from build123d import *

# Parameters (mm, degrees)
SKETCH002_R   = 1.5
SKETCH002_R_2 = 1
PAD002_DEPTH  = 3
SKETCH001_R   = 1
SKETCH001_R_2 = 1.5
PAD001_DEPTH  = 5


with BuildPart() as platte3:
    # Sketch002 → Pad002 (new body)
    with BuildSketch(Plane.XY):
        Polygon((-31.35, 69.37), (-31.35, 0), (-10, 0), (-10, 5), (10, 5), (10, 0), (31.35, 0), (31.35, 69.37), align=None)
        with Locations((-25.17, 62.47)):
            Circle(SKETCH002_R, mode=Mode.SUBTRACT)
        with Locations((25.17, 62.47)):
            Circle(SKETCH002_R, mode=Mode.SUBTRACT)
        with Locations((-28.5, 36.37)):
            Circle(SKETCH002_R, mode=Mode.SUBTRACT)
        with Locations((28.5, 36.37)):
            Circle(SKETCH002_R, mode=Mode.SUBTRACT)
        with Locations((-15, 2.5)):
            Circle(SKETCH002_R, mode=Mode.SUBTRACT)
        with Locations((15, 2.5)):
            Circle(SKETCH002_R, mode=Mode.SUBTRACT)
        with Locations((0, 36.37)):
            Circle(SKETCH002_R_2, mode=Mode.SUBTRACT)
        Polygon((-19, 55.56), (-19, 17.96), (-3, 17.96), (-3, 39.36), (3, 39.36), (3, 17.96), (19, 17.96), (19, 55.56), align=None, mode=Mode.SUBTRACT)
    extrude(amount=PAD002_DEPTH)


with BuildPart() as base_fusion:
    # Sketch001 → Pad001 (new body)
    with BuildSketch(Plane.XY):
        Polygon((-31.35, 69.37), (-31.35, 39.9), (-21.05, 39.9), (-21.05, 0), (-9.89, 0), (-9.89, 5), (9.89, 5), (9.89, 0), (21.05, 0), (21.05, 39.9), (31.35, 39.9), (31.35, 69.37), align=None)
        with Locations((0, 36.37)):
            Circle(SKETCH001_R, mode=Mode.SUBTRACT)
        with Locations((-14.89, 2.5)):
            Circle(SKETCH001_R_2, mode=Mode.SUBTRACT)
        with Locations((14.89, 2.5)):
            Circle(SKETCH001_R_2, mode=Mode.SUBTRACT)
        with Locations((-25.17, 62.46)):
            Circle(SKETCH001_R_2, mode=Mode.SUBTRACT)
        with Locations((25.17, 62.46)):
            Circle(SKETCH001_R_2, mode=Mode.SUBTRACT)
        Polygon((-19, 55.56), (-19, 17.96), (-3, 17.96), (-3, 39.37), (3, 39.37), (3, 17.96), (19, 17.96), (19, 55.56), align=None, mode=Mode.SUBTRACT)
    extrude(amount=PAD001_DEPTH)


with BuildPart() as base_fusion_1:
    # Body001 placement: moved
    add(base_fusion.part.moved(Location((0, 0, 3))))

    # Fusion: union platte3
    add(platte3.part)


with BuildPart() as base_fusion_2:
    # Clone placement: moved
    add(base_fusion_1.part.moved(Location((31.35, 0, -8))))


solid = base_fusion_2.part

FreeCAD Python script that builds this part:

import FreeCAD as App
import Part
import Sketcher

doc = App.newDocument("Part")
body = doc.addObject("PartDesign::Body", "Body")

sketch1 = body.newObject("Sketcher::SketchObject", "Sketch")
sketch1.AttachmentSupport = (doc.getObject("XY_Plane"), [""])
sketch1.MapMode = "FlatFace"
sketch1.addGeometry(Part.LineSegment(App.Vector(-31.4, 69.4, 0), App.Vector(-31.4, 0, 0)), False)
sketch1.addGeometry(Part.LineSegment(App.Vector(-31.4, 0, 0), App.Vector(-10, 0, 0)), False)
sketch1.addGeometry(Part.LineSegment(App.Vector(-10, 0, 0), App.Vector(-10, 5, 0)), False)
sketch1.addGeometry(Part.LineSegment(App.Vector(-10, 5, 0), App.Vector(10, 5, 0)), False)
sketch1.addGeometry(Part.LineSegment(App.Vector(10, 5, 0), App.Vector(10, 0, 0)), False)
sketch1.addGeometry(Part.LineSegment(App.Vector(10, 0, 0), App.Vector(31.4, 0, 0)), False)
sketch1.addGeometry(Part.LineSegment(App.Vector(31.4, 0, 0), App.Vector(31.4, 69.4, 0)), False)
sketch1.addGeometry(Part.LineSegment(App.Vector(31.4, 69.4, 0), App.Vector(-31.4, 69.4, 0)), False)
sketch1.addGeometry(Part.Circle(App.Vector(-15, 2.5, 0), App.Vector(0, 0, 1), 1.5), False)
sketch1.addGeometry(Part.Circle(App.Vector(15, 2.5, 0), App.Vector(0, 0, 1), 1.5), False)
sketch1.addGeometry(Part.Circle(App.Vector(-28.5, 36.4, 0), App.Vector(0, 0, 1), 1.5), False)
sketch1.addGeometry(Part.Circle(App.Vector(-25.2, 62.5, 0), App.Vector(0, 0, 1), 1.5), False)
sketch1.addGeometry(Part.Circle(App.Vector(0, 36.4, 0), App.Vector(0, 0, 1), 1), False)
sketch1.addGeometry(Part.LineSegment(App.Vector(-19, 18, 0), App.Vector(-19, 55.6, 0)), False)
sketch1.addGeometry(Part.LineSegment(App.Vector(-19, 55.6, 0), App.Vector(19, 55.6, 0)), False)
sketch1.addGeometry(Part.LineSegment(App.Vector(19, 55.6, 0), App.Vector(19, 18, 0)), False)
sketch1.addGeometry(Part.LineSegment(App.Vector(19, 18, 0), App.Vector(3, 18, 0)), False)
sketch1.addGeometry(Part.LineSegment(App.Vector(3, 18, 0), App.Vector(3, 39.4, 0)), False)
sketch1.addGeometry(Part.LineSegment(App.Vector(3, 39.4, 0), App.Vector(-3, 39.4, 0)), False)
sketch1.addGeometry(Part.LineSegment(App.Vector(-3, 39.4, 0), App.Vector(-3, 18, 0)), False)
sketch1.addGeometry(Part.LineSegment(App.Vector(-3, 18, 0), App.Vector(-19, 18, 0)), False)
sketch1.addGeometry(Part.Circle(App.Vector(28.5, 36.4, 0), App.Vector(0, 0, 1), 1.5), False)
sketch1.addGeometry(Part.Circle(App.Vector(25.2, 62.5, 0), App.Vector(0, 0, 1), 1.5), False)
sketch1.addConstraint(Sketcher.Constraint("Coincident", 0, 2, 1, 1))
sketch1.addConstraint(Sketcher.Constraint("Coincident", 1, 2, 2, 1))
sketch1.addConstraint(Sketcher.Constraint("Coincident", 2, 2, 3, 1))
sketch1.addConstraint(Sketcher.Constraint("Coincident", 3, 2, 4, 1))
sketch1.addConstraint(Sketcher.Constraint("Coincident", 4, 2, 5, 1))
sketch1.addConstraint(Sketcher.Constraint("Coincident", 5, 2, 6, 1))
sketch1.addConstraint(Sketcher.Constraint("Coincident", 6, 2, 7, 1))
sketch1.addConstraint(Sketcher.Constraint("Coincident", 7, 2, 0, 1))
sketch1.addConstraint(Sketcher.Constraint("Coincident", 13, 2, 14, 1))
sketch1.addConstraint(Sketcher.Constraint("Coincident", 14, 2, 15, 1))
sketch1.addConstraint(Sketcher.Constraint("Coincident", 15, 2, 16, 1))
sketch1.addConstraint(Sketcher.Constraint("Coincident", 16, 2, 17, 1))
sketch1.addConstraint(Sketcher.Constraint("Coincident", 17, 2, 18, 1))
sketch1.addConstraint(Sketcher.Constraint("Coincident", 18, 2, 19, 1))
sketch1.addConstraint(Sketcher.Constraint("Coincident", 19, 2, 20, 1))
sketch1.addConstraint(Sketcher.Constraint("Coincident", 20, 2, 13, 1))
sketch1.addConstraint(Sketcher.Constraint("Vertical", 0))
sketch1.addConstraint(Sketcher.Constraint("Horizontal", 1))
sketch1.addConstraint(Sketcher.Constraint("Vertical", 2))
sketch1.addConstraint(Sketcher.Constraint("Horizontal", 3))
sketch1.addConstraint(Sketcher.Constraint("Vertical", 4))
sketch1.addConstraint(Sketcher.Constraint("Horizontal", 5))
sketch1.addConstraint(Sketcher.Constraint("Vertical", 6))
sketch1.addConstraint(Sketcher.Constraint("Horizontal", 7))
sketch1.addConstraint(Sketcher.Constraint("Vertical", 13))
sketch1.addConstraint(Sketcher.Constraint("Horizontal", 14))
sketch1.addConstraint(Sketcher.Constraint("Vertical", 15))
sketch1.addConstraint(Sketcher.Constraint("Horizontal", 16))
sketch1.addConstraint(Sketcher.Constraint("Vertical", 17))
sketch1.addConstraint(Sketcher.Constraint("Horizontal", 18))
sketch1.addConstraint(Sketcher.Constraint("Vertical", 19))
sketch1.addConstraint(Sketcher.Constraint("Horizontal", 20))
sketch1.addConstraint(Sketcher.Constraint("Equal", 8, 9))
sketch1.addConstraint(Sketcher.Constraint("Equal", 9, 10))
sketch1.addConstraint(Sketcher.Constraint("Equal", 10, 11))
sketch1.addConstraint(Sketcher.Constraint("Equal", 11, 21))
sketch1.addConstraint(Sketcher.Constraint("Equal", 21, 22))
sketch1.addConstraint(Sketcher.Constraint("Symmetric", 1, 2, 4, 2, -1, 1))
sketch1.addConstraint(Sketcher.Constraint("Symmetric", 8, 3, 9, 3, -2))
sketch1.addConstraint(Sketcher.Constraint("Symmetric", 10, 3, 21, 3, -2))
sketch1.addConstraint(Sketcher.Constraint("Symmetric", 11, 3, 22, 3, -2))
sketch1.addConstraint(Sketcher.Constraint("Symmetric", 0, 2, 5, 2, -2))
sketch1.addConstraint(Sketcher.Constraint("Symmetric", 16, 2, 19, 2, -2))
sketch1.addConstraint(Sketcher.Constraint("PointOnObject", 12, 3, -2))
sketch1.addConstraint(Sketcher.Constraint("Horizontal", 10, 3, 12, 3))
sketch1.addConstraint(Sketcher.Constraint("Equal", 16, 20))
sketch1.addConstraint(Sketcher.Constraint("Diameter", 8, 3.0))
sketch1.addConstraint(Sketcher.Constraint("Diameter", 12, 2.0))
sketch1.addConstraint(Sketcher.Constraint("DistanceX", 3, 1, 3, 2, 20.0))
sketch1.addConstraint(Sketcher.Constraint("DistanceX", 14, 1, 14, 2, 38.0))
sketch1.addConstraint(Sketcher.Constraint("DistanceX", 16, 2, 16, 1, 16.0))
sketch1.addConstraint(Sketcher.Constraint("DistanceY", 2, 1, 2, 2, 5.0))
sketch1.addConstraint(Sketcher.Constraint("DistanceX", 7, 2, 7, 1, 62.7))
sketch1.addConstraint(Sketcher.Constraint("DistanceY", 13, 1, 13, 2, 37.6))
sketch1.addConstraint(Sketcher.Constraint("DistanceY", 17, 1, 17, 2, 21.4))
sketch1.addConstraint(Sketcher.Constraint("DistanceX", 8, 3, -1, 1, 15.0))
sketch1.addConstraint(Sketcher.Constraint("DistanceX", 10, 3, 21, 3, 57.0))
sketch1.addConstraint(Sketcher.Constraint("DistanceY", 21, 3, 6, 2, 33.0))
sketch1.addConstraint(Sketcher.Constraint("DistanceY", 0, 2, 0, 1, 69.37))
sketch1.addConstraint(Sketcher.Constraint("DistanceY", -1, 1, 8, 3, 2.5))
sketch1.addConstraint(Sketcher.Constraint("DistanceY", 10, 3, 11, 3, 26.1))
sketch1.addConstraint(Sketcher.Constraint("DistanceX", 11, 3, -1, 1, 25.17))
sketch1.addConstraint(Sketcher.Constraint("DistanceY", -1, 1, 13, 2, 55.56))
pad1 = body.newObject("PartDesign::Pad", "Pad")
pad1.Profile = sketch1
pad1.Length = 3
body2 = doc.addObject("PartDesign::Body", "Body001")

sketch2 = body2.newObject("Sketcher::SketchObject", "Sketch001")
sketch2.AttachmentSupport = (doc.getObject("XY_Plane001"), [""])
sketch2.MapMode = "FlatFace"
sketch2.addGeometry(Part.LineSegment(App.Vector(-31.4, 69.4, 0), App.Vector(-31.4, 39.9, 0)), False)
sketch2.addGeometry(Part.LineSegment(App.Vector(-31.4, 39.9, 0), App.Vector(-21.1, 39.9, 0)), False)
sketch2.addGeometry(Part.LineSegment(App.Vector(-21.1, 39.9, 0), App.Vector(-21.1, 0, 0)), False)
sketch2.addGeometry(Part.LineSegment(App.Vector(-21.1, 0, 0), App.Vector(-9.9, 0, 0)), False)
sketch2.addGeometry(Part.LineSegment(App.Vector(-9.9, 0, 0), App.Vector(-9.9, 5, 0)), False)
sketch2.addGeometry(Part.LineSegment(App.Vector(-9.9, 5, 0), App.Vector(9.9, 5, 0)), False)
sketch2.addGeometry(Part.LineSegment(App.Vector(9.9, 5, 0), App.Vector(9.9, 0, 0)), False)
sketch2.addGeometry(Part.LineSegment(App.Vector(9.9, 0, 0), App.Vector(21.1, 0, 0)), False)
sketch2.addGeometry(Part.LineSegment(App.Vector(21.1, 0, 0), App.Vector(21.1, 39.9, 0)), False)
sketch2.addGeometry(Part.LineSegment(App.Vector(21.1, 39.9, 0), App.Vector(31.4, 39.9, 0)), False)
sketch2.addGeometry(Part.LineSegment(App.Vector(31.4, 39.9, 0), App.Vector(31.4, 69.4, 0)), False)
sketch2.addGeometry(Part.LineSegment(App.Vector(31.4, 69.4, 0), App.Vector(-31.4, 69.4, 0)), False)
sketch2.addGeometry(Part.Circle(App.Vector(-14.9, 2.5, 0), App.Vector(0, 0, 1), 1.5), False)
sketch2.addGeometry(Part.Circle(App.Vector(14.9, 2.5, 0), App.Vector(0, 0, 1), 1.5), False)
sketch2.addGeometry(Part.Circle(App.Vector(0, 36.4, 0), App.Vector(0, 0, 1), 1), False)
sketch2.addGeometry(Part.LineSegment(App.Vector(-19, 18, 0), App.Vector(-19, 55.6, 0)), False)
sketch2.addGeometry(Part.LineSegment(App.Vector(-19, 55.6, 0), App.Vector(19, 55.6, 0)), False)
sketch2.addGeometry(Part.LineSegment(App.Vector(19, 55.6, 0), App.Vector(19, 18, 0)), False)
sketch2.addGeometry(Part.LineSegment(App.Vector(19, 18, 0), App.Vector(3, 18, 0)), False)
sketch2.addGeometry(Part.LineSegment(App.Vector(3, 18, 0), App.Vector(3, 39.4, 0)), False)
sketch2.addGeometry(Part.LineSegment(App.Vector(3, 39.4, 0), App.Vector(-3, 39.4, 0)), False)
sketch2.addGeometry(Part.LineSegment(App.Vector(-3, 39.4, 0), App.Vector(-3, 18, 0)), False)
sketch2.addGeometry(Part.LineSegment(App.Vector(-3, 18, 0), App.Vector(-19, 18, 0)), False)
sketch2.addGeometry(Part.Circle(App.Vector(-25.2, 62.5, 0), App.Vector(0, 0, 1), 1.5), False)
sketch2.addGeometry(Part.Circle(App.Vector(25.2, 62.5, 0), App.Vector(0, 0, 1), 1.5), False)
sketch2.addConstraint(Sketcher.Constraint("Coincident", 0, 2, 1, 1))
sketch2.addConstraint(Sketcher.Constraint("Coincident", 1, 2, 2, 1))
sketch2.addConstraint(Sketcher.Constraint("Coincident", 2, 2, 3, 1))
sketch2.addConstraint(Sketcher.Constraint("Coincident", 3, 2, 4, 1))
sketch2.addConstraint(Sketcher.Constraint("Coincident", 4, 2, 5, 1))
sketch2.addConstraint(Sketcher.Constraint("Coincident", 5, 2, 6, 1))
sketch2.addConstraint(Sketcher.Constraint("Coincident", 6, 2, 7, 1))
sketch2.addConstraint(Sketcher.Constraint("Coincident", 7, 2, 8, 1))
sketch2.addConstraint(Sketcher.Constraint("Coincident", 8, 2, 9, 1))
sketch2.addConstraint(Sketcher.Constraint("Coincident", 9, 2, 10, 1))
sketch2.addConstraint(Sketcher.Constraint("Coincident", 10, 2, 11, 1))
sketch2.addConstraint(Sketcher.Constraint("Coincident", 11, 2, 0, 1))
sketch2.addConstraint(Sketcher.Constraint("Coincident", 15, 2, 16, 1))
sketch2.addConstraint(Sketcher.Constraint("Coincident", 16, 2, 17, 1))
sketch2.addConstraint(Sketcher.Constraint("Coincident", 17, 2, 18, 1))
sketch2.addConstraint(Sketcher.Constraint("Coincident", 18, 2, 19, 1))
sketch2.addConstraint(Sketcher.Constraint("Coincident", 19, 2, 20, 1))
sketch2.addConstraint(Sketcher.Constraint("Coincident", 20, 2, 21, 1))
sketch2.addConstraint(Sketcher.Constraint("Coincident", 21, 2, 22, 1))
sketch2.addConstraint(Sketcher.Constraint("Coincident", 22, 2, 15, 1))
sketch2.addConstraint(Sketcher.Constraint("Vertical", 0))
sketch2.addConstraint(Sketcher.Constraint("Horizontal", 1))
sketch2.addConstraint(Sketcher.Constraint("Vertical", 2))
sketch2.addConstraint(Sketcher.Constraint("Horizontal", 3))
sketch2.addConstraint(Sketcher.Constraint("Vertical", 4))
sketch2.addConstraint(Sketcher.Constraint("Horizontal", 5))
sketch2.addConstraint(Sketcher.Constraint("Vertical", 6))
sketch2.addConstraint(Sketcher.Constraint("Horizontal", 7))
sketch2.addConstraint(Sketcher.Constraint("Vertical", 8))
sketch2.addConstraint(Sketcher.Constraint("Horizontal", 9))
sketch2.addConstraint(Sketcher.Constraint("Vertical", 10))
sketch2.addConstraint(Sketcher.Constraint("Horizontal", 11))
sketch2.addConstraint(Sketcher.Constraint("Vertical", 15))
sketch2.addConstraint(Sketcher.Constraint("Horizontal", 16))
sketch2.addConstraint(Sketcher.Constraint("Vertical", 17))
sketch2.addConstraint(Sketcher.Constraint("Horizontal", 18))
sketch2.addConstraint(Sketcher.Constraint("Vertical", 19))
sketch2.addConstraint(Sketcher.Constraint("Horizontal", 20))
sketch2.addConstraint(Sketcher.Constraint("Vertical", 21))
sketch2.addConstraint(Sketcher.Constraint("Horizontal", 22))
sketch2.addConstraint(Sketcher.Constraint("Equal", 12, 13))
sketch2.addConstraint(Sketcher.Constraint("Equal", 13, 23))
sketch2.addConstraint(Sketcher.Constraint("Equal", 23, 24))
sketch2.addConstraint(Sketcher.Constraint("Symmetric", 3, 2, 6, 2, -1, 1))
sketch2.addConstraint(Sketcher.Constraint("Symmetric", 12, 3, 13, 3, -2))
sketch2.addConstraint(Sketcher.Constraint("Symmetric", 23, 3, 24, 3, -2))
sketch2.addConstraint(Sketcher.Constraint("Symmetric", 2, 2, 7, 2, -2))
sketch2.addConstraint(Sketcher.Constraint("Symmetric", 0, 2, 9, 2, -2))
sketch2.addConstraint(Sketcher.Constraint("Symmetric", 18, 2, 21, 2, -2))
sketch2.addConstraint(Sketcher.Constraint("PointOnObject", 14, 3, -2))
sketch2.addConstraint(Sketcher.Constraint("Equal", 18, 22))
sketch2.addConstraint(Sketcher.Constraint("Diameter", 12, 3.0))
sketch2.addConstraint(Sketcher.Constraint("Diameter", 14, 2.0))
sketch2.addConstraint(Sketcher.Constraint("DistanceX", 16, 1, 16, 2, 38.0))
sketch2.addConstraint(Sketcher.Constraint("DistanceX", 18, 2, 18, 1, 16.0))
sketch2.addConstraint(Sketcher.Constraint("DistanceY", 4, 1, 4, 2, 5.0))
sketch2.addConstraint(Sketcher.Constraint("DistanceX", 1, 1, 1, 2, 10.3))
sketch2.addConstraint(Sketcher.Constraint("DistanceX", 11, 2, 11, 1, 62.7))
sketch2.addConstraint(Sketcher.Constraint("DistanceY", 2, 2, 2, 1, 39.9))
sketch2.addConstraint(Sketcher.Constraint("DistanceY", 15, 1, 15, 2, 37.6))
sketch2.addConstraint(Sketcher.Constraint("DistanceX", 12, 3, 3, 2, 5.0))
sketch2.addConstraint(Sketcher.Constraint("DistanceY", 14, 3, 10, 2, 33.0))
sketch2.addConstraint(Sketcher.Constraint("DistanceY", 14, 3, 19, 2, 3.0))
sketch2.addConstraint(Sketcher.Constraint("DistanceX", 3, 1, 3, 2, 11.16))
sketch2.addConstraint(Sketcher.Constraint("DistanceY", 0, 2, 0, 1, 29.47))
sketch2.addConstraint(Sketcher.Constraint("DistanceY", 19, 1, 19, 2, 21.41))
sketch2.addConstraint(Sketcher.Constraint("DistanceY", -1, 1, 12, 3, 2.5))
sketch2.addConstraint(Sketcher.Constraint("DistanceY", 15, 2, 23, 3, 6.9))
sketch2.addConstraint(Sketcher.Constraint("DistanceX", 23, 3, -1, 1, 25.17))
pad2 = body2.newObject("PartDesign::Pad", "Pad001")
pad2.Profile = sketch2
pad2.Length = 5
body3 = doc.addObject("PartDesign::Body", "Body002")
doc.recompute()

body2.Placement = App.Placement(App.Vector(0, 0, 3), App.Rotation(App.Vector(0, 0, 1), 0))
boolean = body3.newObject("PartDesign::Boolean", "Boolean")
boolean.Type = "Fuse"
boolean.addObjects([body2])
doc.recompute()

boolean2 = body3.newObject("PartDesign::Boolean", "Boolean001")
boolean2.Type = "Fuse"
boolean2.addObjects([body])
body4 = doc.addObject("PartDesign::Body", "Body003")
doc.recompute()

body3.Placement = App.Placement(App.Vector(31.35, 0, -8), App.Rotation(App.Vector(0, 0, 1), 0))
boolean3 = body4.newObject("PartDesign::Boolean", "Boolean002")
boolean3.Type = "Fuse"
boolean3.addObjects([body3])

doc.recompute()
